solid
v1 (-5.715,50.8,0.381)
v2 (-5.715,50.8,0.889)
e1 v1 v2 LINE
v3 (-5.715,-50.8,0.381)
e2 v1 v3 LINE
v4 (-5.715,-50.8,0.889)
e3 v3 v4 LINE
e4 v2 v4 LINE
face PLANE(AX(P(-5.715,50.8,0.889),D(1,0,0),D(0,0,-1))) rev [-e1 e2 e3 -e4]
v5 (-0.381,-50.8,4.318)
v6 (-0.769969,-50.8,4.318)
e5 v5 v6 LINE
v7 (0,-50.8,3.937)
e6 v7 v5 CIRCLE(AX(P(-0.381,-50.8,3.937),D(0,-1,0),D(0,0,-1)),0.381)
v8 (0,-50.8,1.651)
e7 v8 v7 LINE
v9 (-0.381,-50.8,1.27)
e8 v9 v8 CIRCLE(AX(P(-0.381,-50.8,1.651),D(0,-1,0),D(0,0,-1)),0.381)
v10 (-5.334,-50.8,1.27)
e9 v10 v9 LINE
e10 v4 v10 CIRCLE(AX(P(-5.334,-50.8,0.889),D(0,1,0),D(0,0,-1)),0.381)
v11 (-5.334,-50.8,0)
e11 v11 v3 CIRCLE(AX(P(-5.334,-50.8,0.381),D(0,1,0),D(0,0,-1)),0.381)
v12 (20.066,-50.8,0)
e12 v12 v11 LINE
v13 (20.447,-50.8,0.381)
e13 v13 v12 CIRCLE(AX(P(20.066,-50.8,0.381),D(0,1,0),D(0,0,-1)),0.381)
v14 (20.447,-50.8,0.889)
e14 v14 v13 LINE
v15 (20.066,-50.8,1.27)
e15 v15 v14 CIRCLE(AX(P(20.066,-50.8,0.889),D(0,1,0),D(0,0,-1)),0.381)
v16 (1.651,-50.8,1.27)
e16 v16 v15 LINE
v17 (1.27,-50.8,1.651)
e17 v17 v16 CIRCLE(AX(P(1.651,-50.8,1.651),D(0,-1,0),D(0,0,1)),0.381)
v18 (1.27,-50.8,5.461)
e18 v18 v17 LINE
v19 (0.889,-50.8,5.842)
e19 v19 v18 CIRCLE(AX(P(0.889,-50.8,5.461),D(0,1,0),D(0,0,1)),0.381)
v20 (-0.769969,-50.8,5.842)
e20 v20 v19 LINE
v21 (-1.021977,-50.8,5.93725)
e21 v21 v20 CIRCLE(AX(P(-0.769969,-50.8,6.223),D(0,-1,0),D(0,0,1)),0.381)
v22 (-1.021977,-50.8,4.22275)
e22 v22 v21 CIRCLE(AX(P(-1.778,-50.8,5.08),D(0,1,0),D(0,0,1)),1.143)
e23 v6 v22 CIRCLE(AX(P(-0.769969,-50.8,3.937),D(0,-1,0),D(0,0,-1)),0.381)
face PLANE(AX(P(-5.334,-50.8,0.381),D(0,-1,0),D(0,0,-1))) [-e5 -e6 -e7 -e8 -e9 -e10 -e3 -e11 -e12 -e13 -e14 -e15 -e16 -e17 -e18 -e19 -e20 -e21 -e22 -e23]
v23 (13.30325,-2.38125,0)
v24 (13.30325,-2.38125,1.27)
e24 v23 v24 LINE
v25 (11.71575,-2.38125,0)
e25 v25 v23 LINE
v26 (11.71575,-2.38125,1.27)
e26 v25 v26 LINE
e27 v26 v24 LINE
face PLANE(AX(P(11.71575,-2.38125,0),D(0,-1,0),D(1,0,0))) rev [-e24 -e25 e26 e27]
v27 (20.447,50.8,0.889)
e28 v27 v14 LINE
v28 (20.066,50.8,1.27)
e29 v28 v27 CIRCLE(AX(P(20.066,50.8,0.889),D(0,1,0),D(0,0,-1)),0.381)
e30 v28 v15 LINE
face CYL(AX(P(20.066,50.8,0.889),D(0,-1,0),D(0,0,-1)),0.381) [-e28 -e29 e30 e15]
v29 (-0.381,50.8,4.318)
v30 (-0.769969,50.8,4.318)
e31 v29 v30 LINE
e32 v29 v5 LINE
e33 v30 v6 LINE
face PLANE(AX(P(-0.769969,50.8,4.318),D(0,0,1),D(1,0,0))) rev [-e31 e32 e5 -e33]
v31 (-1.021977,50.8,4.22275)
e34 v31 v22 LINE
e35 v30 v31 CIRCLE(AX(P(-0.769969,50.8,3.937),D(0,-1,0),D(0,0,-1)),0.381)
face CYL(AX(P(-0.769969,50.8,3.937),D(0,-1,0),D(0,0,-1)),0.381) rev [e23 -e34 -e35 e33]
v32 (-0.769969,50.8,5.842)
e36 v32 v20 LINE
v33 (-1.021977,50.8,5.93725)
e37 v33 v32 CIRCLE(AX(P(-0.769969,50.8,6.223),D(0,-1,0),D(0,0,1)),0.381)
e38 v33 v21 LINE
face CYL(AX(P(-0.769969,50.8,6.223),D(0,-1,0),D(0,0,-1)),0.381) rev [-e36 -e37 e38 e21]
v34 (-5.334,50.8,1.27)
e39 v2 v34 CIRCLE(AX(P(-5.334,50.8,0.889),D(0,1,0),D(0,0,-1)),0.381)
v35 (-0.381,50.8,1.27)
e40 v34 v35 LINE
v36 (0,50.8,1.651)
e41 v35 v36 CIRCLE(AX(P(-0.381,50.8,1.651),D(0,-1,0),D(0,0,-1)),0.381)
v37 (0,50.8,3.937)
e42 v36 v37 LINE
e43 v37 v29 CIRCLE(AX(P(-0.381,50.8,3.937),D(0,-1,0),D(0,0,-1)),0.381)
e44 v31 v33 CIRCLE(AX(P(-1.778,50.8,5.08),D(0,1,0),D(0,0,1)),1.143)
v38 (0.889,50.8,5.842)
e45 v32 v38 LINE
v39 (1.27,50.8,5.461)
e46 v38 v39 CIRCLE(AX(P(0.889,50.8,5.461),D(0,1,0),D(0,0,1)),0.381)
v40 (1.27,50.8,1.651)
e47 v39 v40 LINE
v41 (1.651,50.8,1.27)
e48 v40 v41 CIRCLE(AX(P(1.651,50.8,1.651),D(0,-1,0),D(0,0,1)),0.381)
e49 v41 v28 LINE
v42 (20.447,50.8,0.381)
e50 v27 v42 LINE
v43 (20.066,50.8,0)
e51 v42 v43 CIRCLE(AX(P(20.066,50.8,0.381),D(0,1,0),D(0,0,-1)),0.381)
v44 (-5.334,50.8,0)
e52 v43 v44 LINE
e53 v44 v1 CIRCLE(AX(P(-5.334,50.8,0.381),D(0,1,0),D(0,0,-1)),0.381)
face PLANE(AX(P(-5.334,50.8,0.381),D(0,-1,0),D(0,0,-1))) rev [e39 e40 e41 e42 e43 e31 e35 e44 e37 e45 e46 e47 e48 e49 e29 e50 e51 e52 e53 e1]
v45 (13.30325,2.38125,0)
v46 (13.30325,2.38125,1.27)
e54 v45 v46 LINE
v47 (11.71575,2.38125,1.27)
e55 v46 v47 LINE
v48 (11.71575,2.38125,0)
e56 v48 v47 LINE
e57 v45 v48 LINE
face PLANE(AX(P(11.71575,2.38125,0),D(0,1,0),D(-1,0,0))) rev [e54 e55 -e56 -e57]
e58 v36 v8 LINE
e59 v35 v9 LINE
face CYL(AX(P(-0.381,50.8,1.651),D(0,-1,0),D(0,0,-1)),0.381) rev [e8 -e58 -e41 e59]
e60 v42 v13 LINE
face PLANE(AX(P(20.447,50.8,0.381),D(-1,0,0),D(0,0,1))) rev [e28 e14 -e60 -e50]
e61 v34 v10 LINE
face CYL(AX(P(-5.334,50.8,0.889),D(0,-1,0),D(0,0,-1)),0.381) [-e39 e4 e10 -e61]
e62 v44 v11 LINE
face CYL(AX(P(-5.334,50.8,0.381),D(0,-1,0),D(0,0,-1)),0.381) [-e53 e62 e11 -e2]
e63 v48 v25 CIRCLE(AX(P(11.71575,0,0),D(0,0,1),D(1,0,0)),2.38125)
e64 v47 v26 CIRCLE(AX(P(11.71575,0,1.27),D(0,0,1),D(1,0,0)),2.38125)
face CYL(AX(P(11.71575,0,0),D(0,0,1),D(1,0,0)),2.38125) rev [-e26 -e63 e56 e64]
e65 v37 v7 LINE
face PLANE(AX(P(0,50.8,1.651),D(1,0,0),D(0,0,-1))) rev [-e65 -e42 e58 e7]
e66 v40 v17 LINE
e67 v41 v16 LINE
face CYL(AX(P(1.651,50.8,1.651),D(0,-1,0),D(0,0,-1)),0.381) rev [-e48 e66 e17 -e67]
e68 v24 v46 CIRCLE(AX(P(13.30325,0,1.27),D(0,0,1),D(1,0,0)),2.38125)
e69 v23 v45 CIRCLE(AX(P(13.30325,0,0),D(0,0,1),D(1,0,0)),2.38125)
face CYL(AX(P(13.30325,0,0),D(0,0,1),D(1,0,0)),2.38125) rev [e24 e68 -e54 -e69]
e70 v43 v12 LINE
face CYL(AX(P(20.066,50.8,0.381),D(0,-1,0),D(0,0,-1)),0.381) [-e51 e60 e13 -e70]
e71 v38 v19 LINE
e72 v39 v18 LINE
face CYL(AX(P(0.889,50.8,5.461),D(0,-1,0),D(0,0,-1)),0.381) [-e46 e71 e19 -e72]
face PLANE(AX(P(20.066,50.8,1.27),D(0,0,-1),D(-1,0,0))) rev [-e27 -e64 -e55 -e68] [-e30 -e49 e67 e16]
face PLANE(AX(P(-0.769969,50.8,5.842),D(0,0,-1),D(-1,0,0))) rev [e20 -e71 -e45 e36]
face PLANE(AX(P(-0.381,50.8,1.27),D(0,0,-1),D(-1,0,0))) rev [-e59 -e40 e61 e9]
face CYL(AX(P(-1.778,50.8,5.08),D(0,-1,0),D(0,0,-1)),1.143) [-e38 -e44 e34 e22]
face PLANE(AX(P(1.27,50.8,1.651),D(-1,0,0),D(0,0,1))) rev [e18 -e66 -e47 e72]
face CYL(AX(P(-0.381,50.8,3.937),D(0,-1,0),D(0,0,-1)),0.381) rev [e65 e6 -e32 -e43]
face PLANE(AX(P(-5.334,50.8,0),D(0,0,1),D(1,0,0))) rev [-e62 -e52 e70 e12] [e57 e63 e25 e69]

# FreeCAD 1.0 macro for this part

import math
import FreeCAD as App
import Part
import Sketcher

V = App.Vector
Q = App.Units.Quantity

doc = App.newDocument("Part")
body = doc.addObject("PartDesign::Body", "Body")

sketch1 = doc.addObject("Sketcher::SketchObject", "Sketch")
body.addObject(sketch1)
sketch1.AttachmentSupport = (doc.XZ_Plane, [""])
sketch1.MapMode = "FlatFace"
sketch1.addGeometry(Part.LineSegment(V(20.07, 0, 0), V(-5.33, 0, 0)), False)
sketch1.addGeometry(Part.ArcOfCircle(Part.Circle(V(-5.33, 0.38, 0), V(0, 0, 1), 0.38), math.radians(180), math.radians(270)), False)
sketch1.addGeometry(Part.LineSegment(V(-5.71, 0.38, 0), V(-5.71, 0.89, 0)), False)
sketch1.addGeometry(Part.ArcOfCircle(Part.Circle(V(-5.33, 0.89, 0), V(0, 0, 1), 0.38), math.radians(90), math.radians(180)), False)
sketch1.addGeometry(Part.LineSegment(V(-5.33, 1.27, 0), V(-0.38, 1.27, 0)), False)
sketch1.addGeometry(Part.ArcOfCircle(Part.Circle(V(-0.38, 1.65, 0), V(0, 0, 1), 0.38), math.radians(-90), math.radians(0)), False)
sketch1.addGeometry(Part.LineSegment(V(0, 1.65, 0), V(0, 3.94, 0)), False)
sketch1.addGeometry(Part.ArcOfCircle(Part.Circle(V(-0.38, 3.94, 0), V(0, 0, 1), 0.38), math.radians(0), math.radians(90)), False)
sketch1.addGeometry(Part.LineSegment(V(-0.38, 4.32, 0), V(-0.77, 4.32, 0)), False)
sketch1.addGeometry(Part.ArcOfCircle(Part.Circle(V(-0.77, 3.94, 0), V(0, 0, 1), 0.38), math.radians(90), math.radians(131)), False)
sketch1.addGeometry(Part.ArcOfCircle(Part.Circle(V(-1.78, 5.08, 0), V(0, 0, 1), 1.14), math.radians(49), math.radians(311)), False)
sketch1.addGeometry(Part.ArcOfCircle(Part.Circle(V(-0.77, 6.22, 0), V(0, 0, 1), 0.38), math.radians(-131), math.radians(-90)), False)
sketch1.addGeometry(Part.LineSegment(V(-0.77, 5.84, 0), V(0.89, 5.84, 0)), False)
sketch1.addGeometry(Part.ArcOfCircle(Part.Circle(V(0.89, 5.46, 0), V(0, 0, 1), 0.38), math.radians(0), math.radians(90)), False)
sketch1.addGeometry(Part.LineSegment(V(1.27, 5.46, 0), V(1.27, 1.65, 0)), False)
sketch1.addGeometry(Part.ArcOfCircle(Part.Circle(V(1.65, 1.65, 0), V(0, 0, 1), 0.38), math.radians(180), math.radians(270)), False)
sketch1.addGeometry(Part.LineSegment(V(1.65, 1.27, 0), V(20.07, 1.27, 0)), False)
sketch1.addGeometry(Part.ArcOfCircle(Part.Circle(V(20.07, 0.89, 0), V(0, 0, 1), 0.38), math.radians(0), math.radians(90)), False)
sketch1.addGeometry(Part.LineSegment(V(20.45, 0.89, 0), V(20.45, 0.38, 0)), False)
sketch1.addGeometry(Part.ArcOfCircle(Part.Circle(V(20.07, 0.38, 0), V(0, 0, 1), 0.38), math.radians(-90), math.radians(0)), False)
sketch1.addConstraint(Sketcher.Constraint("Tangent", 0, 2, 1, 2))
sketch1.addConstraint(Sketcher.Constraint("Tangent", 1, 1, 2, 1))
sketch1.addConstraint(Sketcher.Constraint("Tangent", 2, 2, 3, 2))
sketch1.addConstraint(Sketcher.Constraint("Tangent", 3, 1, 4, 1))
sketch1.addConstraint(Sketcher.Constraint("Tangent", 4, 2, 5, 1))
sketch1.addConstraint(Sketcher.Constraint("Tangent", 5, 2, 6, 1))
sketch1.addConstraint(Sketcher.Constraint("Tangent", 6, 2, 7, 1))
sketch1.addConstraint(Sketcher.Constraint("Tangent", 7, 2, 8, 1))
sketch1.addConstraint(Sketcher.Constraint("Tangent", 8, 2, 9, 1))
sketch1.addConstraint(Sketcher.Constraint("Tangent", 9, 2, 10, 2))
sketch1.addConstraint(Sketcher.Constraint("Tangent", 10, 1, 11, 1))
sketch1.addConstraint(Sketcher.Constraint("Tangent", 11, 2, 12, 1))
sketch1.addConstraint(Sketcher.Constraint("Tangent", 12, 2, 13, 2))
sketch1.addConstraint(Sketcher.Constraint("Tangent", 13, 1, 14, 1))
sketch1.addConstraint(Sketcher.Constraint("Tangent", 14, 2, 15, 1))
sketch1.addConstraint(Sketcher.Constraint("Tangent", 15, 2, 16, 1))
sketch1.addConstraint(Sketcher.Constraint("Tangent", 16, 2, 17, 2))
sketch1.addConstraint(Sketcher.Constraint("Tangent", 17, 1, 18, 1))
sketch1.addConstraint(Sketcher.Constraint("Tangent", 18, 2, 19, 2))
sketch1.addConstraint(Sketcher.Constraint("Tangent", 19, 1, 0, 1))
sketch1.addConstraint(Sketcher.Constraint("Horizontal", 0))
sketch1.addConstraint(Sketcher.Constraint("Vertical", 2))
sketch1.addConstraint(Sketcher.Constraint("Horizontal", 4))
sketch1.addConstraint(Sketcher.Constraint("Vertical", 6))
sketch1.addConstraint(Sketcher.Constraint("Horizontal", 8))
sketch1.addConstraint(Sketcher.Constraint("Horizontal", 12))
sketch1.addConstraint(Sketcher.Constraint("Vertical", 14))
sketch1.addConstraint(Sketcher.Constraint("Horizontal", 16))
sketch1.addConstraint(Sketcher.Constraint("Vertical", 18))
sketch1.addConstraint(Sketcher.Constraint("Equal", 1, 3))
sketch1.addConstraint(Sketcher.Constraint("Equal", 3, 5))
sketch1.addConstraint(Sketcher.Constraint("Equal", 5, 7))
sketch1.addConstraint(Sketcher.Constraint("Equal", 7, 9))
sketch1.addConstraint(Sketcher.Constraint("Equal", 9, 11))
sketch1.addConstraint(Sketcher.Constraint("Equal", 11, 13))
sketch1.addConstraint(Sketcher.Constraint("Equal", 13, 15))
sketch1.addConstraint(Sketcher.Constraint("Equal", 15, 17))
sketch1.addConstraint(Sketcher.Constraint("Equal", 17, 19))
sketch1.addConstraint(Sketcher.Constraint("PointOnObject", 0, 2, -1))
sketch1.addConstraint(Sketcher.Constraint("PointOnObject", 5, 2, -2))
sketch1.addConstraint(Sketcher.Constraint("Horizontal", 5, 3, 15, 3))
sketch1.addConstraint(Sketcher.Constraint("Vertical", 9, 3, 11, 3))
sketch1.addConstraint(Sketcher.Constraint("DistanceX", 0, 2, 0, 1, Q("1 in")))
sketch1.addConstraint(Sketcher.Constraint("Radius", 1, Q("0.015 in")))
sketch1.addConstraint(Sketcher.Constraint("Radius", 10, Q("0.045 in")))
sketch1.addConstraint(Sketcher.Constraint("DistanceY", 2, 1, 2, 2, Q("0.02 in")))
sketch1.addConstraint(Sketcher.Constraint("DistanceY", 6, 1, 6, 2, Q("0.09 in")))
sketch1.addConstraint(Sketcher.Constraint("DistanceY", 14, 2, 14, 1, Q("0.15 in")))
sketch1.addConstraint(Sketcher.Constraint("DistanceX", 4, 1, 4, 2, Q("0.195 in")))
sketch1.addConstraint(Sketcher.Constraint("DistanceX", 16, 1, 16, 2, Q("0.725 in")))
sketch1.addConstraint(Sketcher.Constraint("DistanceX", 10, 3, -1, 1, Q("0.07 in")))
pad1 = doc.addObject("PartDesign::Pad", "Pad")
body.addObject(pad1)
pad1.Profile = sketch1
pad1.Length = Q("4 in")
pad1.Midplane = True

sketch2 = doc.addObject("Sketcher::SketchObject", "Sketch001")
body.addObject(sketch2)
sketch2.AttachmentSupport = (doc.XY_Plane, [""])
sketch2.MapMode = "FlatFace"
sketch2.AttachmentOffset = App.Placement(V(0, 0, 0.05 * 25.4), App.Rotation())
sketch2.addGeometry(Part.LineSegment(V(13.3, 2.4, 0), V(11.7, 2.4, 0)), False)
sketch2.addGeometry(Part.ArcOfCircle(Part.Circle(V(11.7, 0, 0), V(0, 0, 1), 2.4), math.radians(90), math.radians(270)), False)
sketch2.addGeometry(Part.LineSegment(V(11.7, -2.4, 0), V(13.3, -2.4, 0)), False)
sketch2.addGeometry(Part.ArcOfCircle(Part.Circle(V(13.3, 0, 0), V(0, 0, 1), 2.4), math.radians(-90), math.radians(90)), False)
sketch2.addConstraint(Sketcher.Constraint("Tangent", 0, 2, 1, 1))
sketch2.addConstraint(Sketcher.Constraint("Tangent", 1, 2, 2, 1))
sketch2.addConstraint(Sketcher.Constraint("Tangent", 2, 2, 3, 1))
sketch2.addConstraint(Sketcher.Constraint("Tangent", 3, 2, 0, 1))
sketch2.addConstraint(Sketcher.Constraint("Horizontal", 0))
sketch2.addConstraint(Sketcher.Constraint("Horizontal", 2))
sketch2.addConstraint(Sketcher.Constraint("PointOnObject", 1, 3, -1))
sketch2.addConstraint(Sketcher.Constraint("Radius", 1, Q("0.09375 in")))
sketch2.addConstraint(Sketcher.Constraint("DistanceX", 0, 2, 0, 1, Q("0.0625 in")))
sketch2.addConstraint(Sketcher.Constraint("DistanceX", -1, 1, 1, 3, Q("11.71575 mm")))
pocket1 = doc.addObject("PartDesign::Pocket", "Pocket")
body.addObject(pocket1)
pocket1.Profile = sketch2
pocket1.Type = "ThroughAll"

doc.recompute()
